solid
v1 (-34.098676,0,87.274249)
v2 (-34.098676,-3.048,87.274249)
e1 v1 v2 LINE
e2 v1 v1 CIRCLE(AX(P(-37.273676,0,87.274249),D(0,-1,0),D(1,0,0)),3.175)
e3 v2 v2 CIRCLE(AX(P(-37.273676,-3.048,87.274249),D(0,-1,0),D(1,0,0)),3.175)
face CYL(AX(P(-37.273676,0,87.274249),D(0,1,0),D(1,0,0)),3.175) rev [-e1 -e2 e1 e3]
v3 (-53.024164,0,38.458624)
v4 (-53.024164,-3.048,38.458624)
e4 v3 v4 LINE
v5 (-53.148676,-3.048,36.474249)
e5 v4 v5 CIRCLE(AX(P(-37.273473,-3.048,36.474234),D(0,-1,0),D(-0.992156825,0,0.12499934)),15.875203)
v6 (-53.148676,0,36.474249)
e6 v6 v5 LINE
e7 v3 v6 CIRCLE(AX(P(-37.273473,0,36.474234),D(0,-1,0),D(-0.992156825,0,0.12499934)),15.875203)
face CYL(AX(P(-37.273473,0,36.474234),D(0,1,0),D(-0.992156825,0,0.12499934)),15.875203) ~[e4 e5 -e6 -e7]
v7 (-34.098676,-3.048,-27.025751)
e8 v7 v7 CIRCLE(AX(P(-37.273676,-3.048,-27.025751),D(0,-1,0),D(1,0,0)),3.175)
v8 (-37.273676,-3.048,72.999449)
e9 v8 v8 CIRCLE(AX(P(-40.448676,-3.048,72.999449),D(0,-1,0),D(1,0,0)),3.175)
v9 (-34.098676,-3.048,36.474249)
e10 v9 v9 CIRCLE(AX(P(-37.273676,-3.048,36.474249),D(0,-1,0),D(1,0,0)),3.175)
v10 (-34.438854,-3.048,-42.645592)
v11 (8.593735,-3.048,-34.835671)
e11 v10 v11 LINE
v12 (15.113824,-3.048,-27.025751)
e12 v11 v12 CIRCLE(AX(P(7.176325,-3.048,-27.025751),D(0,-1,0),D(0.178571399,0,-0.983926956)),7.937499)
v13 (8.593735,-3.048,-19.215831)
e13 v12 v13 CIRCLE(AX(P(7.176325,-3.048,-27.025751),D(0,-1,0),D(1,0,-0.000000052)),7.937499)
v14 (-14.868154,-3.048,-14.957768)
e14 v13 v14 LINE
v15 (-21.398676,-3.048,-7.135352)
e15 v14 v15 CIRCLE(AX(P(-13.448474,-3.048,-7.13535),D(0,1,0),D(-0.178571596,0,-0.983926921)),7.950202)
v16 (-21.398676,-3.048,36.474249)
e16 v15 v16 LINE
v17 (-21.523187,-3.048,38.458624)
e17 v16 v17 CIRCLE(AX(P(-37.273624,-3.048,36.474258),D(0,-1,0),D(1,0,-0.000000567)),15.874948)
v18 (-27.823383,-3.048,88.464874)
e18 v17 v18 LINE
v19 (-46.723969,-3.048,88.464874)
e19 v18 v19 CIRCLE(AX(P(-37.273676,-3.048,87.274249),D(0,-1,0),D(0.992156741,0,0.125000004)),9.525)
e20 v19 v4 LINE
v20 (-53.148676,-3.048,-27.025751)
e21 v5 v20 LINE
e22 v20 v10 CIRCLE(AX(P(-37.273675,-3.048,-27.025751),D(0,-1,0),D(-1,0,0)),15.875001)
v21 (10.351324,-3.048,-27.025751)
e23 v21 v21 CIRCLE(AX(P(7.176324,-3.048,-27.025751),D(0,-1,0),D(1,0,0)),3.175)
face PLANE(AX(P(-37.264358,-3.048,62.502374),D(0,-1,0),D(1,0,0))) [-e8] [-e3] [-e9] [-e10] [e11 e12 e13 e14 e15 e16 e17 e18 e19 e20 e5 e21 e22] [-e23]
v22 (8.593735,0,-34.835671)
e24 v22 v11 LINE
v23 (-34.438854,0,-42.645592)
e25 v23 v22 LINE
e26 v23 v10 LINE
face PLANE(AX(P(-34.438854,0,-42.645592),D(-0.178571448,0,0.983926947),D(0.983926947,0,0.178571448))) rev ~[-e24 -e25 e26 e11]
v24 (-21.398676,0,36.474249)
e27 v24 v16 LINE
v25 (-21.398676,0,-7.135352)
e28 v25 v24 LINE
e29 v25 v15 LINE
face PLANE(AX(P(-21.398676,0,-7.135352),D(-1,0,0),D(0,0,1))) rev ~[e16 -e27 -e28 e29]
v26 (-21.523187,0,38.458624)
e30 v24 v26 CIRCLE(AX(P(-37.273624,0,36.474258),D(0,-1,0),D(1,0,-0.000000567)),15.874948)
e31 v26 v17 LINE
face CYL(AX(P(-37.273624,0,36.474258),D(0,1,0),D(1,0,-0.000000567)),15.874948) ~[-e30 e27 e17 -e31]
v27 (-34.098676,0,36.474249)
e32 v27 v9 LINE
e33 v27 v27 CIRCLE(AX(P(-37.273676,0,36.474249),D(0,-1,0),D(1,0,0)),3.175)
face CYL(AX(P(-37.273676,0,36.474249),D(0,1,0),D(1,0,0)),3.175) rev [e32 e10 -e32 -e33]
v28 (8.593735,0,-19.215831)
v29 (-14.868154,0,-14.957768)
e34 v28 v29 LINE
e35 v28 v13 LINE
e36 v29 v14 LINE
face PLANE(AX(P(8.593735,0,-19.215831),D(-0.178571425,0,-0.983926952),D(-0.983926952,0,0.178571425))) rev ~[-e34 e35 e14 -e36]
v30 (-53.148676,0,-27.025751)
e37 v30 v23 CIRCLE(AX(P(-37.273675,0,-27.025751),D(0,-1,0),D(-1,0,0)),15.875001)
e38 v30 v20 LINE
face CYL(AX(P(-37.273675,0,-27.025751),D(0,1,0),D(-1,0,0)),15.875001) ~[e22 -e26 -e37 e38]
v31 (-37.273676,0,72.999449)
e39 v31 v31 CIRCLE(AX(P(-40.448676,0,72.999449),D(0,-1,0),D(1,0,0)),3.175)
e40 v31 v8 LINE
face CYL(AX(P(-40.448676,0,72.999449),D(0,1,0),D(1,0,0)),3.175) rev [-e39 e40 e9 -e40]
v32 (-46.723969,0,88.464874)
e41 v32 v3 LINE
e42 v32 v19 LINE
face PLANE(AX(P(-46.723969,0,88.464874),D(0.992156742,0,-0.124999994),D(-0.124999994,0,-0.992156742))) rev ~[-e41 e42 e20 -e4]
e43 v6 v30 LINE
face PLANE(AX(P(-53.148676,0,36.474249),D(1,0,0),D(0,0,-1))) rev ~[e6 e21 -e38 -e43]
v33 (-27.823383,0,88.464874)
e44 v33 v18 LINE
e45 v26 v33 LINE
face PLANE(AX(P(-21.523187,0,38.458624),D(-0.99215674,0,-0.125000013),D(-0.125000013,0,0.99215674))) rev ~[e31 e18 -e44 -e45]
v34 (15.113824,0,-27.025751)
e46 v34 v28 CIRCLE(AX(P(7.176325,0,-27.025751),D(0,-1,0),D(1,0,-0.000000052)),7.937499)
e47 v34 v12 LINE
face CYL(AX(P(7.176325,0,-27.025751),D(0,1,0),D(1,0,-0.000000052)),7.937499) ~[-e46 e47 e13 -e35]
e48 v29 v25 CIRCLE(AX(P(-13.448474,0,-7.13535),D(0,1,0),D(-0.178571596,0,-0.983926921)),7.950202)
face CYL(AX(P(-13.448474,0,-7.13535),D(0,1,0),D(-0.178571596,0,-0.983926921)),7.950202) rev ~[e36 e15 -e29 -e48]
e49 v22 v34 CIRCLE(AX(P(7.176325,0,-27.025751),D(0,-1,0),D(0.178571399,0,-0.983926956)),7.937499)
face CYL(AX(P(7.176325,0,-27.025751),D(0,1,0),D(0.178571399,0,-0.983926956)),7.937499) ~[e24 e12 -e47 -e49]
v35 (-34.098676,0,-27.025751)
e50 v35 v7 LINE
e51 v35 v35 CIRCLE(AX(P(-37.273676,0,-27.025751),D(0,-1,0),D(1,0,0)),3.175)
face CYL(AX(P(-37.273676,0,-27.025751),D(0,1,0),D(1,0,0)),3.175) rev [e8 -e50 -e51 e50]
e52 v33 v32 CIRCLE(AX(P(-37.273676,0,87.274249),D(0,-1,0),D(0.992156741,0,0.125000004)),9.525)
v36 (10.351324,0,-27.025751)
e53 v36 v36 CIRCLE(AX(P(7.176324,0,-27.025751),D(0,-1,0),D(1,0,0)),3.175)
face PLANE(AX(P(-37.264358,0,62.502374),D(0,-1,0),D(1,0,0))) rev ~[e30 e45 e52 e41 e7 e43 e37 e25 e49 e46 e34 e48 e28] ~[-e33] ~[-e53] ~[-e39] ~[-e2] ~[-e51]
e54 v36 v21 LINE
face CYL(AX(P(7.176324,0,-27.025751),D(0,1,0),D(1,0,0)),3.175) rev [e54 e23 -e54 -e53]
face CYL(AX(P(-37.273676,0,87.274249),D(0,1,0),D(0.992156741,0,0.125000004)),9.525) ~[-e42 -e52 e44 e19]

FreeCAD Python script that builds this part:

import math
import FreeCAD as App
import Part
import Sketcher

V = App.Vector
Q = App.Units.Quantity

doc = App.newDocument("Part")
body = doc.addObject("PartDesign::Body", "Body")

sketch1 = body.newObject("Sketcher::SketchObject", "Sketch")
sketch1.AttachmentSupport = (doc.getObject("XZ_Plane"), [""])
sketch1.MapMode = "FlatFace"
sketch1.addGeometry(Part.LineSegment(V(-21.523187, 38.458624, 0), V(-27.823383, 88.464874, 0)), False)
sketch1.addGeometry(Part.ArcOfCircle(Part.Circle(V(-37.273676, 87.274249, 0), V(0, 0, 1), 9.525), math.radians(7.180756), math.radians(172.819244)), False)
sketch1.addGeometry(Part.LineSegment(V(-46.723969, 88.464874, 0), V(-53.024164, 38.458624, 0)), False)
sketch1.addGeometry(Part.ArcOfCircle(Part.Circle(V(-37.273473, 36.474234, 0), V(0, 0, 1), 15.875203), math.radians(172.819282), math.radians(179.999946)), False)
sketch1.addGeometry(Part.LineSegment(V(-53.148676, 36.474249, 0), V(-53.148676, -27.025751, 0)), False)
sketch1.addGeometry(Part.ArcOfCircle(Part.Circle(V(-37.273675, -27.025751, 0), V(0, 0, 1), 15.875001), math.radians(180), math.radians(280.28656)), False)
sketch1.addGeometry(Part.LineSegment(V(-34.438854, -42.645592, 0), V(8.593735, -34.835671, 0)), False)
sketch1.addGeometry(Part.ArcOfCircle(Part.Circle(V(7.176325, -27.025751, 0), V(0, 0, 1), 7.937499), math.radians(-79.713441), math.radians(0.000003)), False)
sketch1.addGeometry(Part.ArcOfCircle(Part.Circle(V(7.176325, -27.025751, 0), V(0, 0, 1), 7.937499), math.radians(-0.000003), math.radians(79.713441)), False)
sketch1.addGeometry(Part.LineSegment(V(8.593735, -19.215831, 0), V(-14.868154, -14.957768, 0)), False)
sketch1.addGeometry(Part.ArcOfCircle(Part.Circle(V(-13.448474, -7.13535, 0), V(0, 0, 1), 7.950202), math.radians(-179.999985), math.radians(-100.28657)), False)
sketch1.addGeometry(Part.LineSegment(V(-21.398676, -7.135352, 0), V(-21.398676, 36.474249, 0)), False)
sketch1.addGeometry(Part.ArcOfCircle(Part.Circle(V(-37.273624, 36.474258, 0), V(0, 0, 1), 15.874948), math.radians(-0.000032), math.radians(7.180746)), False)
sketch1.addGeometry(Part.Circle(V(-37.273676, -27.025751, 0), V(0, 0, 1), 3.175), False)
sketch1.addGeometry(Part.Circle(V(7.176324, -27.025751, 0), V(0, 0, 1), 3.175), False)
sketch1.addGeometry(Part.Circle(V(-37.273676, 36.474249, 0), V(0, 0, 1), 3.175), False)
sketch1.addGeometry(Part.Circle(V(-40.448676, 72.999449, 0), V(0, 0, 1), 3.175), False)
sketch1.addGeometry(Part.Circle(V(-37.273676, 87.274249, 0), V(0, 0, 1), 3.175), False)
sketch1.addConstraint(Sketcher.Constraint("Coincident", 0, 2, 1, 1))
sketch1.addConstraint(Sketcher.Constraint("Coincident", 1, 2, 2, 1))
sketch1.addConstraint(Sketcher.Constraint("Coincident", 2, 2, 3, 1))
sketch1.addConstraint(Sketcher.Constraint("Coincident", 3, 2, 4, 1))
sketch1.addConstraint(Sketcher.Constraint("Coincident", 4, 2, 5, 1))
sketch1.addConstraint(Sketcher.Constraint("Coincident", 5, 2, 6, 1))
sketch1.addConstraint(Sketcher.Constraint("Coincident", 6, 2, 7, 1))
sketch1.addConstraint(Sketcher.Constraint("Coincident", 7, 2, 8, 1))
sketch1.addConstraint(Sketcher.Constraint("Coincident", 8, 2, 9, 1))
sketch1.addConstraint(Sketcher.Constraint("Coincident", 9, 2, 10, 2))
sketch1.addConstraint(Sketcher.Constraint("Coincident", 10, 1, 11, 1))
sketch1.addConstraint(Sketcher.Constraint("Coincident", 11, 2, 12, 1))
sketch1.addConstraint(Sketcher.Constraint("Coincident", 12, 2, 0, 1))
sketch1.addConstraint(Sketcher.Constraint("Vertical", 4))
sketch1.addConstraint(Sketcher.Constraint("Vertical", 11))
sketch1.addConstraint(Sketcher.Constraint("Coincident", 8, 3, 7, 3))
sketch1.addConstraint(Sketcher.Constraint("Coincident", 13, 3, 5, 3))
sketch1.addConstraint(Sketcher.Constraint("Coincident", 14, 3, 7, 3))
sketch1.addConstraint(Sketcher.Constraint("Coincident", 17, 3, 1, 3))
sketch1.addConstraint(Sketcher.Constraint("Diameter", 13, Q("0.25 in")))
sketch1.addConstraint(Sketcher.Constraint("Diameter", 14, Q("0.25 in")))
sketch1.addConstraint(Sketcher.Constraint("Diameter", 15, Q("0.25 in")))
sketch1.addConstraint(Sketcher.Constraint("Diameter", 16, Q("0.25 in")))
sketch1.addConstraint(Sketcher.Constraint("Diameter", 17, Q("0.25 in")))
sketch1.addConstraint(Sketcher.Constraint("DistanceY", 4, 2, 4, 1, Q("2.5 in")))
sketch1.addConstraint(Sketcher.Constraint("Radius", 1, Q("0.375 in")))
sketch1.addConstraint(Sketcher.Constraint("Radius", 5, Q("0.625 in")))
sketch1.addConstraint(Sketcher.Constraint("Radius", 7, Q("0.3125 in")))
sketch1.addConstraint(Sketcher.Constraint("Radius", 10, Q("0.3130001 in")))
sketch1.addConstraint(Sketcher.Constraint("DistanceY", 15, 3, 1, 3, Q("2 in")))
sketch1.addConstraint(Sketcher.Constraint("DistanceY", 5, 3, 1, 3, Q("4.5 in")))
sketch1.addConstraint(Sketcher.Constraint("DistanceY", 7, 3, 1, 3, Q("4.5 in")))
sketch1.addConstraint(Sketcher.Constraint("DistanceX", 3, 2, 16, 3, Q("0.5 in")))
sketch1.addConstraint(Sketcher.Constraint("DistanceX", 5, 3, 7, 3, Q("1.75 in")))
sketch1.addConstraint(Sketcher.Constraint("DistanceX", 1, 3, 7, 3, Q("1.75 in")))
sketch1.addConstraint(Sketcher.Constraint("DistanceX", 3, 2, 11, 2, Q("1.25 in")))
sketch1.addConstraint(Sketcher.Constraint("Radius", 12, 15.874948))
sketch1.addConstraint(Sketcher.Constraint("DistanceX", 15, 3, 10, 3, Q("0.9380001 in")))
sketch1.addConstraint(Sketcher.Constraint("DistanceY", 16, 3, 1, 3, Q("0.562 in")))
sketch1.addConstraint(Sketcher.Constraint("DistanceY", 17, 3, 0, 2, Q("0.046875 in")))
sketch1.addConstraint(Sketcher.Constraint("DistanceY", 17, 3, 1, 2, Q("0.046875 in")))
sketch1.addConstraint(Sketcher.Constraint("DistanceY", 15, 3, 2, 2, Q("0.078125 in")))
sketch1.addConstraint(Sketcher.Constraint("DistanceY", 3, 2, 2, 2, Q("0.078125 in")))
sketch1.addConstraint(Sketcher.Constraint("DistanceY", 11, 2, 2, 2, Q("0.078125 in")))
sketch1.addConstraint(Sketcher.Constraint("DistanceY", 11, 2, 12, 2, Q("0.078125 in")))
sketch1.addConstraint(Sketcher.Constraint("DistanceY", 11, 1, 11, 2, 43.609601))
sketch1.addConstraint(Sketcher.Constraint("Radius", 3, 15.875203))
sketch1.addConstraint(Sketcher.Constraint("DistanceX", 2, 2, 12, 3, Q("0.6201 in")))
sketch1.addConstraint(Sketcher.Constraint("DistanceY", 8, 3, 10, 3, 19.890401))
sketch1.addConstraint(Sketcher.Constraint("DistanceY", 7, 2, 10, 3, 19.890401))
sketch1.addConstraint(Sketcher.Constraint("DistanceY", -1, 1, 1, 3, 87.274249))
sketch1.addConstraint(Sketcher.Constraint("DistanceY", -1, 1, 12, 3, 36.474258))
sketch1.addConstraint(Sketcher.Constraint("DistanceX", 1, 2, -1, 1, 46.723969))
sketch1.addConstraint(Sketcher.Constraint("DistanceY", 5, 2, -1, 1, 42.645592))
sketch1.addConstraint(Sketcher.Constraint("DistanceY", 6, 2, -1, 1, 34.835671))
sketch1.addConstraint(Sketcher.Constraint("DistanceY", 8, 2, -1, 1, 19.215831))
sketch1.addConstraint(Sketcher.Constraint("DistanceX", 9, 2, 10, 3, 1.41968))
pad1 = body.newObject("PartDesign::Pad", "Pad")
pad1.Profile = sketch1
pad1.Length = Q("0.12 in")

doc.recompute()
